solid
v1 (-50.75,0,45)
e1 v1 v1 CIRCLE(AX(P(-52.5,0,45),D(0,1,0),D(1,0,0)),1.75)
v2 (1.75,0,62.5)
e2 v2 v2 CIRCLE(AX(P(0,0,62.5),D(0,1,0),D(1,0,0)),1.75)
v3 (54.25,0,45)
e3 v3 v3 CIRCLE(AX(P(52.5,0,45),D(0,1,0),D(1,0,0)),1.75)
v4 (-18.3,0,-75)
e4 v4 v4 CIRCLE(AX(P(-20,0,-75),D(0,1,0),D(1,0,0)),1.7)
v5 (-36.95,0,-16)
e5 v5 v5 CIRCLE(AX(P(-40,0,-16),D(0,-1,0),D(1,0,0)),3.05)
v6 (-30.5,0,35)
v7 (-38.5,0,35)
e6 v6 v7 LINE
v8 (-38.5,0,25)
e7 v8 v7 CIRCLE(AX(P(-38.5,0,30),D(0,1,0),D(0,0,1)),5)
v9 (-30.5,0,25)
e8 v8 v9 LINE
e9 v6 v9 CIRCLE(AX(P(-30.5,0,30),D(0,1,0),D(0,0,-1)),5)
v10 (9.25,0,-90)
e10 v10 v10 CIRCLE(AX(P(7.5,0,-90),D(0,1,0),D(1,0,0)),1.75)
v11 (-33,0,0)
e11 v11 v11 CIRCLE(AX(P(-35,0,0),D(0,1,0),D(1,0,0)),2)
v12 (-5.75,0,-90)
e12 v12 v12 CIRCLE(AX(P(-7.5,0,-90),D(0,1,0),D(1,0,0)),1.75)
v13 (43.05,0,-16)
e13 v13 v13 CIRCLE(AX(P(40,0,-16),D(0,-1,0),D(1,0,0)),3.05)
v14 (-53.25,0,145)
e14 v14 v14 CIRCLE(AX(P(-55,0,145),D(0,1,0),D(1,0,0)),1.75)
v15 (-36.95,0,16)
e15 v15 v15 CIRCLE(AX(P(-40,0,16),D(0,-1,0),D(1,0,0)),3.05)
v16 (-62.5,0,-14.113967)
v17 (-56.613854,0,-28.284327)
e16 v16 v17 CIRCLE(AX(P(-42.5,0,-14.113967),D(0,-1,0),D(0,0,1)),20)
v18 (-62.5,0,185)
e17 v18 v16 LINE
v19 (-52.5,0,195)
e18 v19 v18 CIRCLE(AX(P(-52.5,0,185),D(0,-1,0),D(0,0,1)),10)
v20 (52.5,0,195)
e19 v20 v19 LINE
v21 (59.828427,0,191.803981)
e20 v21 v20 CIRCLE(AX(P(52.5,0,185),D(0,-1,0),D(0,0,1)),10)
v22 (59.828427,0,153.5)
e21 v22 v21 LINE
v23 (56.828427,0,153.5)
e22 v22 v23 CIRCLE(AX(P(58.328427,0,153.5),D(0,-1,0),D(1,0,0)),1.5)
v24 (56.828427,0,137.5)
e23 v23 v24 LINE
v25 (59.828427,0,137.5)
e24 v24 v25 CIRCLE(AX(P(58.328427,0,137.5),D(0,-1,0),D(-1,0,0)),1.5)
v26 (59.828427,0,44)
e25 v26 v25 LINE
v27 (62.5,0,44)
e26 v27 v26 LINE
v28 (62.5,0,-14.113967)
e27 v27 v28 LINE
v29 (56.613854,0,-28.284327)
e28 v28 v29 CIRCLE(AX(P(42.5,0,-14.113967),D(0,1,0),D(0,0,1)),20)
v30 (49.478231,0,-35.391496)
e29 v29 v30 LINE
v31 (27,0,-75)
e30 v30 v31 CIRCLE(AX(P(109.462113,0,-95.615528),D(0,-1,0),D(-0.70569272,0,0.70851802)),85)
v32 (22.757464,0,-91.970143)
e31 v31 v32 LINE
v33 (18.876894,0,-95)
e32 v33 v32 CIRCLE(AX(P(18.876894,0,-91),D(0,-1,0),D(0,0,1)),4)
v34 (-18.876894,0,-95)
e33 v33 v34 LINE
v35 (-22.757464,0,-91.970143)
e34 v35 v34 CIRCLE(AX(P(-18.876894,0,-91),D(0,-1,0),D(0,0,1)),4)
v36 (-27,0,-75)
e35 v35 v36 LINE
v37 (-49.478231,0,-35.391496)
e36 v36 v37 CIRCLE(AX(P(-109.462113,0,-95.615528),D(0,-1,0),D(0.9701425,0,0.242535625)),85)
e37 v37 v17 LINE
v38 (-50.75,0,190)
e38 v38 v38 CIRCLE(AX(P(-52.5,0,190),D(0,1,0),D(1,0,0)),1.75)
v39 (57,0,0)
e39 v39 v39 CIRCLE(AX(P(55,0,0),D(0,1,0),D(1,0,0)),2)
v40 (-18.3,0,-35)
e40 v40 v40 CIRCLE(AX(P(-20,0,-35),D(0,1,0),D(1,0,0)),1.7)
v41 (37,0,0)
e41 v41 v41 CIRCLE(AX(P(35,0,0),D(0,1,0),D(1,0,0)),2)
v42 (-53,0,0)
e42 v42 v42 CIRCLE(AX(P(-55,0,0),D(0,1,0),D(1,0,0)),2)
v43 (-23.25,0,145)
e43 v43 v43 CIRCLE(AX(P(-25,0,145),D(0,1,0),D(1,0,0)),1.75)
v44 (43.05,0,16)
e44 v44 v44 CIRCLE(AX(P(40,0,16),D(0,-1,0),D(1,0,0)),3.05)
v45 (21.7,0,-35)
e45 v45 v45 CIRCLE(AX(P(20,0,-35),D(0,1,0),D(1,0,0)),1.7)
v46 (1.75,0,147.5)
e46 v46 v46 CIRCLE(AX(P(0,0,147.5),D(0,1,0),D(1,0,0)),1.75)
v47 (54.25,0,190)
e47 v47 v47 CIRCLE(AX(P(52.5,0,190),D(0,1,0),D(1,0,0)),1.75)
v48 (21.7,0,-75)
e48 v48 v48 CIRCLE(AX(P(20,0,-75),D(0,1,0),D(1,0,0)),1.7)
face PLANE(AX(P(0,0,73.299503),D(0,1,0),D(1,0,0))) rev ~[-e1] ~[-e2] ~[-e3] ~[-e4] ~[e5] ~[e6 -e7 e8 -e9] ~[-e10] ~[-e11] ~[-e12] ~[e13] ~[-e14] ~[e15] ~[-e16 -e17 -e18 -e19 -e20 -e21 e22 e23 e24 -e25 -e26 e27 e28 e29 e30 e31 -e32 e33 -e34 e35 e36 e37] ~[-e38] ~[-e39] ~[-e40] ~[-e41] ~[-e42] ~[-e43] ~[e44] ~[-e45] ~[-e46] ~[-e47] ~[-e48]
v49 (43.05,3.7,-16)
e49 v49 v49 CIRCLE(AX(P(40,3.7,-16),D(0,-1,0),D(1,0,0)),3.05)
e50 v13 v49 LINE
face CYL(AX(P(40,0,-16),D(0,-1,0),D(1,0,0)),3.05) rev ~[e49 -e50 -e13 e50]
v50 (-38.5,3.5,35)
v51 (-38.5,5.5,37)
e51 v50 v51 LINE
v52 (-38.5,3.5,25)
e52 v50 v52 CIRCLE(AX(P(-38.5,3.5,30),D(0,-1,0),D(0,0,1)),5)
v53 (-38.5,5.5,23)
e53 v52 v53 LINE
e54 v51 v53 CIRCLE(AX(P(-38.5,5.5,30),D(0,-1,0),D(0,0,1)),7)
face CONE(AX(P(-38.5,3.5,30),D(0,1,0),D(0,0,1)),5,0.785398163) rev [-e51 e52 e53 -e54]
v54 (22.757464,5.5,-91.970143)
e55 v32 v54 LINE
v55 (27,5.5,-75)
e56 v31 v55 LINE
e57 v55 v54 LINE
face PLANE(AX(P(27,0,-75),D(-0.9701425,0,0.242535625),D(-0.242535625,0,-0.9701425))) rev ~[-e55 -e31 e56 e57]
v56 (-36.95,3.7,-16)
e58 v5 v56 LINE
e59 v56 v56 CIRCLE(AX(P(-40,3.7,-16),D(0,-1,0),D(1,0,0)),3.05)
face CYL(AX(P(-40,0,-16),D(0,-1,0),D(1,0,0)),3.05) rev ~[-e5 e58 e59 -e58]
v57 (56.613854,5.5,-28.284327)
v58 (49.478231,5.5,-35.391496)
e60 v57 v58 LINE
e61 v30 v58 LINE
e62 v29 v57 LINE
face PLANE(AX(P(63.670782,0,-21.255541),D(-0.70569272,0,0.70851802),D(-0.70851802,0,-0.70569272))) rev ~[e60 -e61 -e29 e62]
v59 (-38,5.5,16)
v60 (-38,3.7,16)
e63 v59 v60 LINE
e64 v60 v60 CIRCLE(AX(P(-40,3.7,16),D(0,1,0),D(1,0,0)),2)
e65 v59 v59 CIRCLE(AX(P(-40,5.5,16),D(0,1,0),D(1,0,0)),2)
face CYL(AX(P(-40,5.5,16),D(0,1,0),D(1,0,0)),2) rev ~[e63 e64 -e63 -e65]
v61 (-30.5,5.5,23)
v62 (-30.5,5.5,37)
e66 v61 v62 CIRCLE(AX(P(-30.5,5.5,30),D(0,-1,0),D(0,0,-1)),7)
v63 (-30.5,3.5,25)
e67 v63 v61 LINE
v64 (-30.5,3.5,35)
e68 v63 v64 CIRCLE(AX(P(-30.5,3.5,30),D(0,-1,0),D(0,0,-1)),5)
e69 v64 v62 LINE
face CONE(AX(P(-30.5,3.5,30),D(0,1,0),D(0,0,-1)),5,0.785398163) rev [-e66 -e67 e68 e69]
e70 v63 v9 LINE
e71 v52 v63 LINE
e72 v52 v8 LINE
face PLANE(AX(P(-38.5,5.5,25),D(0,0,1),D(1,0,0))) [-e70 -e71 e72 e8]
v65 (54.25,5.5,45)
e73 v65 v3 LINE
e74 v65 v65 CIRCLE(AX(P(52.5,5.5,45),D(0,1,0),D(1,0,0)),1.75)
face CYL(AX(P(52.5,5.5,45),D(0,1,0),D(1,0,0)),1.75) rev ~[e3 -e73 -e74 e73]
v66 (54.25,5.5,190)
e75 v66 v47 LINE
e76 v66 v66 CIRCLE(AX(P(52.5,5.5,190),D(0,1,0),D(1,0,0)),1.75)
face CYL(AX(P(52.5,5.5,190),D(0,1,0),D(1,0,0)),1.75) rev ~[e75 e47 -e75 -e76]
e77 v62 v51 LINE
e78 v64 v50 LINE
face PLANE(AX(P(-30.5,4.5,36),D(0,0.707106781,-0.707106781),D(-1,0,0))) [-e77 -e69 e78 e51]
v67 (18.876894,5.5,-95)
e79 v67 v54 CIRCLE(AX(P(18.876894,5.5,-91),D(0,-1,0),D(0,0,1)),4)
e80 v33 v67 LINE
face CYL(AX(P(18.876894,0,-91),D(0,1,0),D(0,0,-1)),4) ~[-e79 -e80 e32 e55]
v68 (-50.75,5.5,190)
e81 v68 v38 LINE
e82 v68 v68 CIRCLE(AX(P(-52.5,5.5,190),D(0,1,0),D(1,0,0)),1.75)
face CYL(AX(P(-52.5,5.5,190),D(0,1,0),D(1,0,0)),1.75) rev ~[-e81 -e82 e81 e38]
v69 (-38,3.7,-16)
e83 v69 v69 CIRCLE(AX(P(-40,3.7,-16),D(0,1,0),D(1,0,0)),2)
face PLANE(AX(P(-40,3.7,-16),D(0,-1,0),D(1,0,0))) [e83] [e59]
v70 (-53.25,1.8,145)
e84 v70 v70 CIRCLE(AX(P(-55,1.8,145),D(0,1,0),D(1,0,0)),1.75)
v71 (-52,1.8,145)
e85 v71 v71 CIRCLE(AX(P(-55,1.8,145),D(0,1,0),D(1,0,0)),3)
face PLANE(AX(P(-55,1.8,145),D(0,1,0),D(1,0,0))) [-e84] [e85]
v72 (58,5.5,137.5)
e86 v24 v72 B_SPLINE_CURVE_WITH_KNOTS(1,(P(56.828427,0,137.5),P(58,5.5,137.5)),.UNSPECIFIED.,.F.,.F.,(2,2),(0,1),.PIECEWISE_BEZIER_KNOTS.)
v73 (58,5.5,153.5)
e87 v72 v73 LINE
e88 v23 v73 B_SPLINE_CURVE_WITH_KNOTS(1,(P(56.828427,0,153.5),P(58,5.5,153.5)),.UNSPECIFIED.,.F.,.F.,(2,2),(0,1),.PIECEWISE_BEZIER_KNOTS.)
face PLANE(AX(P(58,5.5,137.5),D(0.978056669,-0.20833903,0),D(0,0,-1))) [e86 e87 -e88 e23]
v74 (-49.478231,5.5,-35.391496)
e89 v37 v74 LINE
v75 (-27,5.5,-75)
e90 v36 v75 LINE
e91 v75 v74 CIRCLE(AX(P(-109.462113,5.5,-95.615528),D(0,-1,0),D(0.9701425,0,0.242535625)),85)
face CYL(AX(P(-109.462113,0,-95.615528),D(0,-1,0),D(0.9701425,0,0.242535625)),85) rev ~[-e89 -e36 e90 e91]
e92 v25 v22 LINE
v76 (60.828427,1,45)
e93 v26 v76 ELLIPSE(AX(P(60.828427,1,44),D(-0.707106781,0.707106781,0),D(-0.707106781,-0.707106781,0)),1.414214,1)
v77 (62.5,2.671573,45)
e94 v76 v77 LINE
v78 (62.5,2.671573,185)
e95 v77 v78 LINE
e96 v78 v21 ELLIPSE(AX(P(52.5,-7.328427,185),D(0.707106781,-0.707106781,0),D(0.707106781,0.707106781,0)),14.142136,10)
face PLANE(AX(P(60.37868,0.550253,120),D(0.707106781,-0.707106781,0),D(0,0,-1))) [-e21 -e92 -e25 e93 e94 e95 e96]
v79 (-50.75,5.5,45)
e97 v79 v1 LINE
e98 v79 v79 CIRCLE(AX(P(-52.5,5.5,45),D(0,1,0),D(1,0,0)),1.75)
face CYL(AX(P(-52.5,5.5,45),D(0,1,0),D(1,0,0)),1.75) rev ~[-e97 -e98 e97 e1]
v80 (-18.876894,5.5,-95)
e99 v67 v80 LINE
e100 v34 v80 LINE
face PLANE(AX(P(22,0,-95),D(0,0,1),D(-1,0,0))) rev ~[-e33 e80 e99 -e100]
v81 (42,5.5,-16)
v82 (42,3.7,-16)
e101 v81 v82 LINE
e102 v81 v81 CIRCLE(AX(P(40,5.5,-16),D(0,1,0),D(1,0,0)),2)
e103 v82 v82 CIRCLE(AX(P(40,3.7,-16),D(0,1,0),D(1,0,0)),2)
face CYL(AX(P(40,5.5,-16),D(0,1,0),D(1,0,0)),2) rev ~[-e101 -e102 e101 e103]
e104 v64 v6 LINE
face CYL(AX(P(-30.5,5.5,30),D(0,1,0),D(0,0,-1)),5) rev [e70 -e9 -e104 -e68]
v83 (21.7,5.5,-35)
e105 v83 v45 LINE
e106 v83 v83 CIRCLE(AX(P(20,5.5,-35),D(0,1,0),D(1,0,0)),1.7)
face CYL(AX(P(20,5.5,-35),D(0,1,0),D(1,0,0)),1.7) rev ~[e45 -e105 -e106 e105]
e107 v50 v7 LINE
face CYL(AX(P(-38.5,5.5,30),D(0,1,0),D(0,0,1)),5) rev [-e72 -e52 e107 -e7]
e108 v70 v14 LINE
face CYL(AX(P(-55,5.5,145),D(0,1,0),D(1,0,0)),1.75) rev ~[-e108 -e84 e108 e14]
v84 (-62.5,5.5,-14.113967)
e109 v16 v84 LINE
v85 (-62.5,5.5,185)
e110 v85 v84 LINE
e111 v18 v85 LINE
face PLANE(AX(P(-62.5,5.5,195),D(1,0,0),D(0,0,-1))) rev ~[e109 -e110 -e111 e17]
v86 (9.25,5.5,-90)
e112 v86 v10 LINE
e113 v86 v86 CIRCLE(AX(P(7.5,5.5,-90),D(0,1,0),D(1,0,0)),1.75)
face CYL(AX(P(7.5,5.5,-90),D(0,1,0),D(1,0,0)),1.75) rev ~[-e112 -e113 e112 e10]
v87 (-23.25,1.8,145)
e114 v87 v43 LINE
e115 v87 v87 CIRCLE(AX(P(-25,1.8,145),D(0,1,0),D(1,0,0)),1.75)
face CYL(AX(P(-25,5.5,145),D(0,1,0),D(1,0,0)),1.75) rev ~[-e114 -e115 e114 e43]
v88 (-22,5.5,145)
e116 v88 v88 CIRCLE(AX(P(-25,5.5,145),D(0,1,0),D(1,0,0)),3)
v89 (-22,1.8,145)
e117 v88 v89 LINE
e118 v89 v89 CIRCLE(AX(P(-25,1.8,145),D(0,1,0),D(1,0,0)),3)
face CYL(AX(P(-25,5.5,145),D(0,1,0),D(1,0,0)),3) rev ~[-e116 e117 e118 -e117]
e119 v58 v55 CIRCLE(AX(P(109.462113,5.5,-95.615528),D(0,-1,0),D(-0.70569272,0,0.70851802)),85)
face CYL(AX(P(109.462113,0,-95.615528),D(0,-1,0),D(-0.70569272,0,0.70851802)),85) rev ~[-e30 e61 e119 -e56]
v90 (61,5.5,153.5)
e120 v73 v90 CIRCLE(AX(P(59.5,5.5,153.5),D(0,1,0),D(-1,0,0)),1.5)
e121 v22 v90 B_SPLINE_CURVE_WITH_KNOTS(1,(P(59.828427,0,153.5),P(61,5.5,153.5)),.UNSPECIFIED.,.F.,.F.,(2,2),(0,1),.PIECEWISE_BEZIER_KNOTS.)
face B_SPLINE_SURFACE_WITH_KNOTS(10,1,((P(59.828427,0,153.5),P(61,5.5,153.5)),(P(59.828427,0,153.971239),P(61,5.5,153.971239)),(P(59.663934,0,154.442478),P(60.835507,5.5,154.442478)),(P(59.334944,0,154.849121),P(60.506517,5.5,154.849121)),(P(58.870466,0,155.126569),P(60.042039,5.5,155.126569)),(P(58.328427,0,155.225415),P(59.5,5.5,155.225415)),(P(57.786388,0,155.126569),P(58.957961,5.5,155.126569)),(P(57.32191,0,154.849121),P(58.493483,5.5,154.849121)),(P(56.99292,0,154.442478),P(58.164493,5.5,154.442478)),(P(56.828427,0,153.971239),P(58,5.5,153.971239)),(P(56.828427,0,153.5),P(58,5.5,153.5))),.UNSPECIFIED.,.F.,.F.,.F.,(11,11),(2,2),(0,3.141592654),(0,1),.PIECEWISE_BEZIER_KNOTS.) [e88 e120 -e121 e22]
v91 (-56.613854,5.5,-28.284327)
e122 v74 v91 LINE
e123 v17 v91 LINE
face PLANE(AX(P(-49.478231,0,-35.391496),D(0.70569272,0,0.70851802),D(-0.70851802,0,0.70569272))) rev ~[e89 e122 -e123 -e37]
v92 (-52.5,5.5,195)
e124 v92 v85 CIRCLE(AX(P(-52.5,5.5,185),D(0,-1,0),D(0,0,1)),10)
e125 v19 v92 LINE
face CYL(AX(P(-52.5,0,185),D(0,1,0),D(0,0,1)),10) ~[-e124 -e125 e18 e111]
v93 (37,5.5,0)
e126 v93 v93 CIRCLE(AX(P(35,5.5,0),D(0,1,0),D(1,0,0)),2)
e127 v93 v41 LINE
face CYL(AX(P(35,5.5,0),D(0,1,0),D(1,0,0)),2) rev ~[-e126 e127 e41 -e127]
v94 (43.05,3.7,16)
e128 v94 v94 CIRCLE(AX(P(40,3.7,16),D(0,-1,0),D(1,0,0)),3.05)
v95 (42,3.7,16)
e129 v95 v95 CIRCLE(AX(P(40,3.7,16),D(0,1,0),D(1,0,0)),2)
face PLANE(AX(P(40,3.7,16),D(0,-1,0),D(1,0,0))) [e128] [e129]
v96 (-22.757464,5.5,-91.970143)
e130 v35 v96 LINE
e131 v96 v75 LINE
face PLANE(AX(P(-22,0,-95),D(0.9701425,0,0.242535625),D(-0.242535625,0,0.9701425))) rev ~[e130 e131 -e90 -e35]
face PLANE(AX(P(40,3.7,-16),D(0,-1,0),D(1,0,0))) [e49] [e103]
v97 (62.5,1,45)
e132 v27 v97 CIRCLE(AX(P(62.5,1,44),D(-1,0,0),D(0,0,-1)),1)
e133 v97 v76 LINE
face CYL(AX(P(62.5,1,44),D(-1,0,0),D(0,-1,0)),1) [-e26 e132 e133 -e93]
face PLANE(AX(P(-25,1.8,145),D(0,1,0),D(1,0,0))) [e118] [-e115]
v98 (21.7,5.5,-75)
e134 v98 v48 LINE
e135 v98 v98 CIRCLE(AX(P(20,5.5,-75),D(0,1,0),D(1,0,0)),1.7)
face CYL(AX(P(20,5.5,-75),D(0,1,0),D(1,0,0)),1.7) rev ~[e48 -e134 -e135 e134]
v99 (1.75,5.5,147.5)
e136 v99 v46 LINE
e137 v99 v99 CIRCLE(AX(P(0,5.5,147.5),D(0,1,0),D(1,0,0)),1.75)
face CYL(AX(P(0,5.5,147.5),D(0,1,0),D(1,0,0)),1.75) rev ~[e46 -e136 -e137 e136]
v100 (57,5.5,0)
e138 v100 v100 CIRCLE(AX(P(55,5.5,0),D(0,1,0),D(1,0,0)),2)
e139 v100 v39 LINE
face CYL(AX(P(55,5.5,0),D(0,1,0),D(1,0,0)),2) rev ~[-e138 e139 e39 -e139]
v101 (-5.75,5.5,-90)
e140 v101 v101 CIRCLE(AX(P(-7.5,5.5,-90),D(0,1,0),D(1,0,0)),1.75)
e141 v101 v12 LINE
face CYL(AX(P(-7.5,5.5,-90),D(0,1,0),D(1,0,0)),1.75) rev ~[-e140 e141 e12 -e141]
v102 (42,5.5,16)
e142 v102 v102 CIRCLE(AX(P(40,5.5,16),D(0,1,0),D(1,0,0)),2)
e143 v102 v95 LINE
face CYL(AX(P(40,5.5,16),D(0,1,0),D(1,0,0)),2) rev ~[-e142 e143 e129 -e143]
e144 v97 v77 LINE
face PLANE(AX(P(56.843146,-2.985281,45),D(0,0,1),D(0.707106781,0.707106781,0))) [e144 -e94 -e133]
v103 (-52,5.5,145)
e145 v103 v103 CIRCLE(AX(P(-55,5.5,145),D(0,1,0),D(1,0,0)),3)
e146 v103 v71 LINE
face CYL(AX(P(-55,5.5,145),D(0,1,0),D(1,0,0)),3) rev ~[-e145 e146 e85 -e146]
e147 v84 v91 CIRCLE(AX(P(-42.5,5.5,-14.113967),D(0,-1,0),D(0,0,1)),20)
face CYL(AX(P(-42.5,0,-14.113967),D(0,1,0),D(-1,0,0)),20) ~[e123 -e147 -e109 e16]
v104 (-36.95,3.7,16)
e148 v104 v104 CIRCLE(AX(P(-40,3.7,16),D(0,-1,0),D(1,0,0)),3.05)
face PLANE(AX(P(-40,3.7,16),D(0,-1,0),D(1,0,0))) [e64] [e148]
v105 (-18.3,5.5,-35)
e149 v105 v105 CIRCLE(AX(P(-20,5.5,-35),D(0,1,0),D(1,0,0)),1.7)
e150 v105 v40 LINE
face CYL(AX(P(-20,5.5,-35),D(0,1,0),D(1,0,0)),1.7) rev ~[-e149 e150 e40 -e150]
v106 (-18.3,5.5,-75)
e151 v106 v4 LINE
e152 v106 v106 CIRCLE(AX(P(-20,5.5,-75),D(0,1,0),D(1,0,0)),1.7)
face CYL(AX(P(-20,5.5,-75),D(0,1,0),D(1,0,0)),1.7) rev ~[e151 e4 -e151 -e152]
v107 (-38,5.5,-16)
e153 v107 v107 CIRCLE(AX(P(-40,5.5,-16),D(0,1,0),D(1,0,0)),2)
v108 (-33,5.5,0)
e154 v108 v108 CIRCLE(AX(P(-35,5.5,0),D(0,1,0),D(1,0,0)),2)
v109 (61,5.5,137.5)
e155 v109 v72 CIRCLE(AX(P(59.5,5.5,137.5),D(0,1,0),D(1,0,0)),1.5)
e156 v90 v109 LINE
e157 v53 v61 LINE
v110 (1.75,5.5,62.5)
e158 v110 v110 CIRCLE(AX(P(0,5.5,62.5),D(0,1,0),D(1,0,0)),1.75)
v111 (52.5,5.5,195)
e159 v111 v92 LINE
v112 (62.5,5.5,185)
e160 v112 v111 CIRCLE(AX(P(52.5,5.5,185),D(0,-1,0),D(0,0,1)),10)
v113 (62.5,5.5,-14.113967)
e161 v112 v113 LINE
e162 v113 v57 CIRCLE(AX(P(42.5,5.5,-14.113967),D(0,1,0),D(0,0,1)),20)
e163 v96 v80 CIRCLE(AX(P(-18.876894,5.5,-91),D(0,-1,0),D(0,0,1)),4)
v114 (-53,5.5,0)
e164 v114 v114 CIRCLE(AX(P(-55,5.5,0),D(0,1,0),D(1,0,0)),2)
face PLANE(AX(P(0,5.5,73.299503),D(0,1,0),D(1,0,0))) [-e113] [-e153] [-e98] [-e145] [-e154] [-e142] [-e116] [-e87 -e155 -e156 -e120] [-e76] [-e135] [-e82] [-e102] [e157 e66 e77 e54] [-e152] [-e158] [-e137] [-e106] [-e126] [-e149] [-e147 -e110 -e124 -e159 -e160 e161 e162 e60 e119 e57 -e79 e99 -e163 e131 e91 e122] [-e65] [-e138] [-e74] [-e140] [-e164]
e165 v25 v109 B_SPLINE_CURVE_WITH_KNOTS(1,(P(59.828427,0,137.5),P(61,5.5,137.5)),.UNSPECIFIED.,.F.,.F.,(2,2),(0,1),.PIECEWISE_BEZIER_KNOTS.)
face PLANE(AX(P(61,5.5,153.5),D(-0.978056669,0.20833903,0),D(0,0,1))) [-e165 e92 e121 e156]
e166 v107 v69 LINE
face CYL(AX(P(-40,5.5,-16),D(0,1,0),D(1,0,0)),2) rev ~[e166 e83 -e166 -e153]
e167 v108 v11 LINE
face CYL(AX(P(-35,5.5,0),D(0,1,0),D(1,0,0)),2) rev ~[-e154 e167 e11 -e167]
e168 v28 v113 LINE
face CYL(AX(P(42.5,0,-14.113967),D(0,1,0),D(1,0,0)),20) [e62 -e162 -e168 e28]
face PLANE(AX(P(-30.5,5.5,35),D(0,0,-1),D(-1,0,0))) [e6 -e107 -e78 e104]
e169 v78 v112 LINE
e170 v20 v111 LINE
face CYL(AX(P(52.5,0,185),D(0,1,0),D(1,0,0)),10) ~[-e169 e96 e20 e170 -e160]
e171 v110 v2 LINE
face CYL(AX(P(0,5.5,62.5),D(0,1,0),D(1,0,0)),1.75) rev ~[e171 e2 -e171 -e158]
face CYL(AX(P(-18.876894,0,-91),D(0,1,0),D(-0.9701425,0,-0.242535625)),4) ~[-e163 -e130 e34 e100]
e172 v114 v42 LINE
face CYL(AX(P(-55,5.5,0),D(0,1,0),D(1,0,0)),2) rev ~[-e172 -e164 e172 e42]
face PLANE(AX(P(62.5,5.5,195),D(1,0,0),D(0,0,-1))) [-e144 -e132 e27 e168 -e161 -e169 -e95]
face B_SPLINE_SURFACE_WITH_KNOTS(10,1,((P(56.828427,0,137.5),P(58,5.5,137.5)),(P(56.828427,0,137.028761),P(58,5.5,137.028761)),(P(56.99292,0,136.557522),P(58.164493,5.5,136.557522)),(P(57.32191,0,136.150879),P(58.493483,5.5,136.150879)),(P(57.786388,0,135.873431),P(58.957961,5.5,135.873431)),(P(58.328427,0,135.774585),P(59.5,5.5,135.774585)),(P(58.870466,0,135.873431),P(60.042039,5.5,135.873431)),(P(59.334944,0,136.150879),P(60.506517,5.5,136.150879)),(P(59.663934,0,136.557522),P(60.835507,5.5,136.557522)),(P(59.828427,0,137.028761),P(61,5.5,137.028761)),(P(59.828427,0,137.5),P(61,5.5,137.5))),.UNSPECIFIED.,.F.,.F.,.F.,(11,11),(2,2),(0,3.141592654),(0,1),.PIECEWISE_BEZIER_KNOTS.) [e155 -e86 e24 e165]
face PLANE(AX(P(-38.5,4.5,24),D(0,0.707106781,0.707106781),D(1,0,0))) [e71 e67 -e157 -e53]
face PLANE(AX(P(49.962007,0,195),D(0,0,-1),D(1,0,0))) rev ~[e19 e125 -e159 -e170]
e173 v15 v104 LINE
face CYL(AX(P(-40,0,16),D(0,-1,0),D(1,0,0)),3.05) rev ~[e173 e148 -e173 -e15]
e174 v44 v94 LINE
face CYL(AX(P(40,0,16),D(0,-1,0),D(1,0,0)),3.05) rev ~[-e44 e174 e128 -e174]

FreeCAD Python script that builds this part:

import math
import FreeCAD as App
import Part
import Sketcher

V = App.Vector
Q = App.Units.Quantity


def edges_at(feature, points):
    """Names of the edges that pass closest to the given points."""
    edges = feature.Shape.Edges
    near = lambda p: min(range(len(edges)), key=lambda i: edges[i].distToShape(Part.Vertex(*p))[0])
    return sorted({f"Edge{near(p) + 1}" for p in points})


def add_polygon(sketch, points):
    """Adds a closed chain of lines whose ends are joined by coincident constraints."""
    first, n = sketch.GeometryCount, len(points)
    for a, b in zip(points, points[1:] + points[:1]):
        sketch.addGeometry(Part.LineSegment(App.Vector(*a, 0), App.Vector(*b, 0)), False)
    for i in range(n):
        sketch.addConstraint(Sketcher.Constraint("Coincident", first + i, 2, first + (i + 1) % n, 1))

doc = App.newDocument("Part")
body = doc.addObject("PartDesign::Body", "Body")

# Sketch on XZ plane
sketch1 = doc.addObject("Sketcher::SketchObject", "Sketch")
body.addObject(sketch1)
sketch1.AttachmentSupport = (doc.XZ_Plane, [""])
sketch1.MapMode = "FlatFace"
sketch1.addGeometry([
    Part.LineSegment(V(-72.5, 0, 0), V(-72.5, 185, 0)),  # 0
    Part.ArcOfCircle(Part.Circle(V(-62.5, 185, 0), V(0, 0, 1), 10), math.radians(90), math.radians(180)),  # 1
    Part.LineSegment(V(-62.5, 195, 0), V(-50, 195, 0)),  # 2
    Part.ArcOfCircle(Part.Circle(V(-50, 200, 0), V(0, 0, 1), 5), math.radians(-90), math.radians(-38)),  # 3
    Part.LineSegment(V(-46, 197, 0), V(-19, 232, 0)),  # 4
    Part.ArcOfCircle(Part.Circle(V(-15, 229, 0), V(0, 0, 1), 5), math.radians(90), math.radians(142)),  # 5
    Part.LineSegment(V(-15, 234, 0), V(15, 234, 0)),  # 6
    Part.ArcOfCircle(Part.Circle(V(15, 229, 0), V(0, 0, 1), 5), math.radians(38), math.radians(90)),  # 7
    Part.LineSegment(V(19, 232, 0), V(46, 197, 0)),  # 8
    Part.ArcOfCircle(Part.Circle(V(50, 200, 0), V(0, 0, 1), 5), math.radians(-142), math.radians(-90)),  # 9
    Part.LineSegment(V(50, 195, 0), V(62.5, 195, 0)),  # 10
    Part.ArcOfCircle(Part.Circle(V(62.5, 185, 0), V(0, 0, 1), 10), math.radians(0), math.radians(90)),  # 11
    Part.LineSegment(V(72.5, 185, 0), V(72.5, 0, 0)),  # 12
    Part.ArcOfCircle(Part.Circle(V(42.5, 0, 0), V(0, 0, 1), 30), math.radians(-45), math.radians(0)),  # 13
    Part.LineSegment(V(63.7, -21.3, 0), V(49.5, -35.4, 0)),  # 14
    Part.ArcOfCircle(Part.Circle(V(109.5, -95.6, 0), V(0, 0, 1), 85), math.radians(135), math.radians(166)),  # 15
    Part.LineSegment(V(27, -75, 0), V(22, -95, 0)),  # 16
    Part.LineSegment(V(22, -95, 0), V(-22, -95, 0)),  # 17
    Part.LineSegment(V(-22, -95, 0), V(-27, -75, 0)),  # 18
    Part.ArcOfCircle(Part.Circle(V(-109.5, -95.6, 0), V(0, 0, 1), 85), math.radians(14), math.radians(45)),  # 19
    Part.LineSegment(V(-49.5, -35.4, 0), V(-63.7, -21.3, 0)),  # 20
    Part.ArcOfCircle(Part.Circle(V(-42.5, 0, 0), V(0, 0, 1), 30), math.radians(180), math.radians(225)),  # 21
], False)
sketch1.addConstraint([
    Sketcher.Constraint("Tangent", 0, 2, 1, 2),
    Sketcher.Constraint("Tangent", 1, 1, 2, 1),
    Sketcher.Constraint("Tangent", 2, 2, 3, 1),
    Sketcher.Constraint("Tangent", 3, 2, 4, 1),
    Sketcher.Constraint("Tangent", 4, 2, 5, 2),
    Sketcher.Constraint("Tangent", 5, 1, 6, 1),
    Sketcher.Constraint("Tangent", 6, 2, 7, 2),
    Sketcher.Constraint("Tangent", 7, 1, 8, 1),
    Sketcher.Constraint("Tangent", 8, 2, 9, 1),
    Sketcher.Constraint("Tangent", 9, 2, 10, 1),
    Sketcher.Constraint("Tangent", 10, 2, 11, 2),
    Sketcher.Constraint("Tangent", 11, 1, 12, 1),
    Sketcher.Constraint("Tangent", 12, 2, 13, 2),
    Sketcher.Constraint("Tangent", 13, 1, 14, 1),
    Sketcher.Constraint("Tangent", 14, 2, 15, 1),
    Sketcher.Constraint("Tangent", 15, 2, 16, 1),
    Sketcher.Constraint("Coincident", 16, 2, 17, 1),
    Sketcher.Constraint("Coincident", 17, 2, 18, 1),
    Sketcher.Constraint("Tangent", 18, 2, 19, 1),
    Sketcher.Constraint("Tangent", 19, 2, 20, 1),
    Sketcher.Constraint("Tangent", 20, 2, 21, 2),
    Sketcher.Constraint("Tangent", 21, 1, 0, 1),
    Sketcher.Constraint("Vertical", 0),
    Sketcher.Constraint("Horizontal", 2),
    Sketcher.Constraint("Horizontal", 6),
    Sketcher.Constraint("Horizontal", 10),
    Sketcher.Constraint("Vertical", 12),
    Sketcher.Constraint("Horizontal", 17),
    Sketcher.Constraint("Equal", 3, 5),
    Sketcher.Constraint("Equal", 5, 7),
    Sketcher.Constraint("Equal", 7, 9),
    Sketcher.Constraint("Equal", 1, 11),
    Sketcher.Constraint("Equal", 15, 19),
    Sketcher.Constraint("Equal", 13, 21),
    Sketcher.Constraint("Symmetric", 13, 3, 21, 3, -1, 1),
    Sketcher.Constraint("Symmetric", 3, 3, 9, 3, -2),
    Sketcher.Constraint("Symmetric", 15, 3, 19, 3, -2),
    Sketcher.Constraint("PointOnObject", 13, 3, -1),
    Sketcher.Constraint("Horizontal", 4, 2, 7, 1),
    Sketcher.Constraint("Horizontal", 15, 2, 18, 2),
    Sketcher.Constraint("Radius", 1, Q("10 mm")),
    Sketcher.Constraint("Radius", 3, Q("5 mm")),
    Sketcher.Constraint("Radius", 13, Q("30 mm")),
    Sketcher.Constraint("Radius", 15, Q("85 mm")),
    Sketcher.Constraint("DistanceX", 17, 2, 17, 1, Q("44 mm")),
    Sketcher.Constraint("DistanceY", 0, 1, 0, 2, Q("185 mm")),
    Sketcher.Constraint("DistanceY", -1, 1, 5, 3, Q("229 mm")),
    Sketcher.Constraint("DistanceX", -1, 1, 15, 2, Q("27 mm")),
    Sketcher.Constraint("DistanceY", 15, 2, -1, 1, Q("75 mm")),
    Sketcher.Constraint("DistanceY", 16, 2, -1, 1, Q("95 mm")),
    Sketcher.Constraint("DistanceX", 3, 3, 7, 3, Q("65 mm")),
    Sketcher.Constraint("DistanceX", 1, 3, 11, 3, Q("125 mm")),
    Sketcher.Constraint("DistanceX", 2, 1, 2, 2, Q("12.537993 mm")),
])
pad1 = doc.addObject("PartDesign::Pad", "Pad")
body.addObject(pad1)
pad1.Profile = sketch1
pad1.Length = 5.5
pad1.Reversed = True

# Sketch on XZ plane
sketch2 = doc.addObject("Sketcher::SketchObject", "Sketch001")
body.addObject(sketch2)
sketch2.AttachmentSupport = (doc.XZ_Plane, [""])
sketch2.MapMode = "FlatFace"
sketch2.AttachmentOffset = App.Placement(V(0, 0, -5.5), App.Rotation())
sketch2.addGeometry(Part.Circle(V(7.5, -90, 0), V(0, 0, 1), 1.8), False)
sketch2.addConstraint([
    Sketcher.Constraint("Diameter", 0, Q("3.5 mm")),
    Sketcher.Constraint("DistanceY", 0, 3, -1, 1, Q("90 mm")),
    Sketcher.Constraint("DistanceX", -1, 1, 0, 3, Q("7.5 mm")),
])
pocket1 = doc.addObject("PartDesign::Pocket", "Pocket")
body.addObject(pocket1)
pocket1.Profile = sketch2
pocket1.Type = "UpToFirst"
pocket1.Reversed = True

# Sketch on XZ plane
sketch3 = doc.addObject("Sketcher::SketchObject", "Sketch002")
body.addObject(sketch3)
sketch3.AttachmentSupport = (doc.XZ_Plane, [""])
sketch3.MapMode = "FlatFace"
sketch3.AttachmentOffset = App.Placement(V(0, 0, -5.5), App.Rotation())
sketch3.addGeometry(Part.Circle(V(-7.5, -90, 0), V(0, 0, 1), 1.8), False)
sketch3.addConstraint([
    Sketcher.Constraint("Diameter", 0, Q("3.5 mm")),
    Sketcher.Constraint("DistanceY", 0, 3, -1, 1, Q("90 mm")),
    Sketcher.Constraint("DistanceX", 0, 3, -1, 1, Q("7.5 mm")),
])
pocket2 = doc.addObject("PartDesign::Pocket", "Pocket001")
body.addObject(pocket2)
pocket2.Profile = sketch3
pocket2.Type = "UpToFirst"
pocket2.Reversed = True

# Sketch on XZ plane
sketch4 = doc.addObject("Sketcher::SketchObject", "Sketch003")
body.addObject(sketch4)
sketch4.AttachmentSupport = (doc.XZ_Plane, [""])
sketch4.MapMode = "FlatFace"
sketch4.AttachmentOffset = App.Placement(V(0, 0, -5.5), App.Rotation())
sketch4.addGeometry(Part.Circle(V(52.5, 45, 0), V(0, 0, 1), 1.8), False)
sketch4.addConstraint([
    Sketcher.Constraint("Diameter", 0, Q("3.5 mm")),
    Sketcher.Constraint("DistanceY", -1, 1, 0, 3, Q("45 mm")),
    Sketcher.Constraint("DistanceX", -1, 1, 0, 3, Q("52.5 mm")),
])
pocket3 = doc.addObject("PartDesign::Pocket", "Pocket002")
body.addObject(pocket3)
pocket3.Profile = sketch4
pocket3.Type = "UpToFirst"
pocket3.Reversed = True

# Sketch on XZ plane
sketch5 = doc.addObject("Sketcher::SketchObject", "Sketch004")
body.addObject(sketch5)
sketch5.AttachmentSupport = (doc.XZ_Plane, [""])
sketch5.MapMode = "FlatFace"
sketch5.AttachmentOffset = App.Placement(V(0, 0, -5.5), App.Rotation())
sketch5.addGeometry(Part.Circle(V(52.5, 190, 0), V(0, 0, 1), 1.8), False)
sketch5.addConstraint([
    Sketcher.Constraint("Diameter", 0, Q("3.5 mm")),
    Sketcher.Constraint("DistanceY", -1, 1, 0, 3, Q("190 mm")),
    Sketcher.Constraint("DistanceX", -1, 1, 0, 3, Q("52.5 mm")),
])
pocket4 = doc.addObject("PartDesign::Pocket", "Pocket003")
body.addObject(pocket4)
pocket4.Profile = sketch5
pocket4.Type = "UpToFirst"
pocket4.Reversed = True

# Sketch on XZ plane
sketch6 = doc.addObject("Sketcher::SketchObject", "Sketch005")
body.addObject(sketch6)
sketch6.AttachmentSupport = (doc.XZ_Plane, [""])
sketch6.MapMode = "FlatFace"
sketch6.AttachmentOffset = App.Placement(V(0, 0, -5.5), App.Rotation())
sketch6.addGeometry(Part.Circle(V(-52.5, 190, 0), V(0, 0, 1), 1.8), False)
sketch6.addConstraint([
    Sketcher.Constraint("Diameter", 0, Q("3.5 mm")),
    Sketcher.Constraint("DistanceY", -1, 1, 0, 3, Q("190 mm")),
    Sketcher.Constraint("DistanceX", 0, 3, -1, 1, Q("52.5 mm")),
])
pocket5 = doc.addObject("PartDesign::Pocket", "Pocket004")
body.addObject(pocket5)
pocket5.Profile = sketch6
pocket5.Type = "UpToFirst"
pocket5.Reversed = True

# Sketch on XZ plane
sketch7 = doc.addObject("Sketcher::SketchObject", "Sketch006")
body.addObject(sketch7)
sketch7.AttachmentSupport = (doc.XZ_Plane, [""])
sketch7.MapMode = "FlatFace"
sketch7.AttachmentOffset = App.Placement(V(0, 0, -5.5), App.Rotation())
sketch7.addGeometry(Part.Circle(V(-52.5, 45, 0), V(0, 0, 1), 1.8), False)
sketch7.addConstraint([
    Sketcher.Constraint("Diameter", 0, Q("3.5 mm")),
    Sketcher.Constraint("DistanceY", -1, 1, 0, 3, Q("45 mm")),
    Sketcher.Constraint("DistanceX", 0, 3, -1, 1, Q("52.5 mm")),
])
pocket6 = doc.addObject("PartDesign::Pocket", "Pocket005")
body.addObject(pocket6)
pocket6.Profile = sketch7
pocket6.Type = "UpToFirst"
pocket6.Reversed = True
doc.recompute()

fillet = doc.addObject("PartDesign::Fillet", "Fillet")
body.addObject(fillet)
fillet.Base = (pocket6, edges_at(pocket6, [(22, 2.75, -95), (-22, 2.75, -95)]))
fillet.Radius = 4

# Sketch on XZ plane
sketch8 = doc.addObject("Sketcher::SketchObject", "Sketch007")
body.addObject(sketch8)
sketch8.AttachmentSupport = (doc.XZ_Plane, [""])
sketch8.MapMode = "FlatFace"
sketch8.AttachmentOffset = App.Placement(V(0, 0, -5.5), App.Rotation())
add_polygon(sketch8, [(-72, 195), (-72, 234), (72, 234), (72, 195)])  # lines 0-3
sketch8.addConstraint([
    Sketcher.Constraint("Vertical", 0),
    Sketcher.Constraint("Horizontal", 1),
    Sketcher.Constraint("Vertical", 2),
    Sketcher.Constraint("Horizontal", 3),
    Sketcher.Constraint("DistanceX", 1, 1, 1, 2, Q("145 mm")),
    Sketcher.Constraint("DistanceY", 0, 1, 0, 2, Q("39 mm")),
    Sketcher.Constraint("DistanceY", -1, 1, 0, 2, Q("234 mm")),
    Sketcher.Constraint("DistanceX", 0, 2, -1, 1, Q("72.5 mm")),
])
pocket7 = doc.addObject("PartDesign::Pocket", "Pocket006")
body.addObject(pocket7)
pocket7.Profile = sketch8
pocket7.Type = "UpToFirst"
pocket7.Reversed = True

# Sketch on XZ plane
sketch9 = doc.addObject("Sketcher::SketchObject", "Sketch008")
body.addObject(sketch9)
sketch9.AttachmentSupport = (doc.XZ_Plane, [""])
sketch9.MapMode = "FlatFace"
sketch9.AttachmentOffset = App.Placement(V(0, 0, -5.5), App.Rotation())
add_polygon(sketch9, [(-106, -128), (-106, 228), (106, 228), (106, -128)])  # lines 0-3
add_polygon(sketch9, [(62, 195), (-62, 195), (-62, -95), (62, -95)])  # lines 4-7
sketch9.addConstraint([
    Sketcher.Constraint("Vertical", 0),
    Sketcher.Constraint("Horizontal", 1),
    Sketcher.Constraint("Vertical", 2),
    Sketcher.Constraint("Horizontal", 3),
    Sketcher.Constraint("Horizontal", 4),
    Sketcher.Constraint("Vertical", 5),
    Sketcher.Constraint("Horizontal", 6),
    Sketcher.Constraint("Vertical", 7),
    Sketcher.Constraint("DistanceX", 4, 2, 4, 1, Q("125 mm")),
    Sketcher.Constraint("DistanceY", 5, 2, 5, 1, Q("290 mm")),
    Sketcher.Constraint("DistanceY", -1, 1, 4, 2, Q("195 mm")),
    Sketcher.Constraint("DistanceX", 4, 2, -1, 1, Q("62.5 mm")),
    Sketcher.Constraint("DistanceX", 1, 1, 1, 2, Q("211.856 mm")),
    Sketcher.Constraint("DistanceY", 0, 1, 0, 2, Q("356.856 mm")),
    Sketcher.Constraint("DistanceX", 0, 2, -1, 1, Q("105.928 mm")),
    Sketcher.Constraint("DistanceY", -1, 1, 0, 2, Q("228.428 mm")),
])
pocket8 = doc.addObject("PartDesign::Pocket", "Pocket007")
body.addObject(pocket8)
pocket8.Profile = sketch9
pocket8.Length = 10
pocket8.Reversed = True
doc.recompute()

fillet2 = doc.addObject("PartDesign::Fillet", "Fillet001")
body.addObject(fillet2)
fillet2.Base = (pocket8, edges_at(pocket8, [(-62.5, 2.75, 195), (62.5, 2.75, 195)]))
fillet2.Radius = 10
doc.recompute()

fillet3 = doc.addObject("PartDesign::Fillet", "Fillet002")
body.addObject(fillet3)
fillet3.Base = (fillet2, edges_at(fillet2, [(-62.5, 2.75, -22.422), (62.5, 2.75, -22.422)]))
fillet3.Radius = 20

# Sketch on XZ plane
sketch10 = doc.addObject("Sketcher::SketchObject", "Sketch009")
body.addObject(sketch10)
sketch10.AttachmentSupport = (doc.XZ_Plane, [""])
sketch10.MapMode = "FlatFace"
sketch10.AttachmentOffset = App.Placement(V(0, 0, -5.5), App.Rotation())
sketch10.addGeometry([
    Part.LineSegment(V(-30, 25, 0), V(-38, 25, 0)),
    Part.ArcOfCircle(Part.Circle(V(-38, 30, 0), V(0, 0, 1), 5), math.radians(90), math.radians(270)),
    Part.LineSegment(V(-38, 35, 0), V(-30, 35, 0)),
    Part.ArcOfCircle(Part.Circle(V(-30, 30, 0), V(0, 0, 1), 5), math.radians(-90), math.radians(90)),
], False)
sketch10.addConstraint([
    Sketcher.Constraint("Tangent", 0, 2, 1, 2),
    Sketcher.Constraint("Tangent", 1, 1, 2, 1),
    Sketcher.Constraint("Tangent", 2, 2, 3, 2),
    Sketcher.Constraint("Tangent", 3, 1, 0, 1),
    Sketcher.Constraint("Horizontal", 0),
    Sketcher.Constraint("Horizontal", 2),
    Sketcher.Constraint("Radius", 1, Q("5 mm")),
    Sketcher.Constraint("DistanceX", 0, 2, 0, 1, Q("8 mm")),
    Sketcher.Constraint("DistanceY", -1, 1, 1, 3, Q("30 mm")),
    Sketcher.Constraint("DistanceX", 1, 3, -1, 1, Q("38.5 mm")),
])
pocket9 = doc.addObject("PartDesign::Pocket", "Pocket008")
body.addObject(pocket9)
pocket9.Profile = sketch10
pocket9.Length = 10
pocket9.Reversed = True
doc.recompute()

chamfer = doc.addObject("PartDesign::Chamfer", "Chamfer")
body.addObject(chamfer)
chamfer.Base = (pocket9, edges_at(pocket9, [
    (-43.5, 5.5, 30),
    (-34.5, 5.5, 35),
    (-25.5, 5.5, 30),
    (-34.5, 5.5, 25),
]))
chamfer.Size = 2

# Sketch on XZ plane
sketch11 = doc.addObject("Sketcher::SketchObject", "Sketch010")
body.addObject(sketch11)
sketch11.AttachmentSupport = (doc.XZ_Plane, [""])
sketch11.MapMode = "FlatFace"
sketch11.AttachmentOffset = App.Placement(V(0, 0, -5.5), App.Rotation())
sketch11.addGeometry([
    Part.Circle(V(-55, 0, 0), V(0, 0, 1), 2),  # 0
    Part.Circle(V(-35, 0, 0), V(0, 0, 1), 2),  # 1
    Part.Circle(V(-40, -16, 0), V(0, 0, 1), 2),  # 2
    Part.Circle(V(40, -16, 0), V(0, 0, 1), 2),  # 3
    Part.Circle(V(35, 0, 0), V(0, 0, 1), 2),  # 4
    Part.Circle(V(55, 0, 0), V(0, 0, 1), 2),  # 5
    Part.Circle(V(40, 16, 0), V(0, 0, 1), 2),  # 6
    Part.Circle(V(-40, 16, 0), V(0, 0, 1), 2),  # 7
], False)
sketch11.addConstraint([
    Sketcher.Constraint("Equal", 0, 1),
    Sketcher.Constraint("Equal", 1, 2),
    Sketcher.Constraint("Equal", 2, 3),
    Sketcher.Constraint("Equal", 3, 4),
    Sketcher.Constraint("Equal", 4, 5),
    Sketcher.Constraint("Equal", 5, 6),
    Sketcher.Constraint("Equal", 6, 7),
    Sketcher.Constraint("Symmetric", 1, 3, 4, 3, -1, 1),
    Sketcher.Constraint("Symmetric", 0, 3, 5, 3, -1, 1),
    Sketcher.Constraint("Symmetric", 2, 3, 6, 3, -1, 1),
    Sketcher.Constraint("Symmetric", 3, 3, 7, 3, -1, 1),
    Sketcher.Constraint("Symmetric", 2, 3, 3, 3, -2),
    Sketcher.Constraint("PointOnObject", 0, 3, -1),
    Sketcher.Constraint("PointOnObject", 1, 3, -1),
    Sketcher.Constraint("Diameter", 0, Q("4 mm")),
    Sketcher.Constraint("DistanceX", 0, 3, -1, 1, Q("55 mm")),
    Sketcher.Constraint("DistanceX", 1, 3, -1, 1, Q("35 mm")),
    Sketcher.Constraint("DistanceX", 2, 3, -1, 1, Q("40 mm")),
    Sketcher.Constraint("DistanceY", 2, 3, -1, 1, Q("16 mm")),
])
pocket10 = doc.addObject("PartDesign::Pocket", "Pocket009")
body.addObject(pocket10)
pocket10.Profile = sketch11
pocket10.Length = 10
pocket10.Reversed = True

# Sketch on XZ plane
sketch12 = doc.addObject("Sketcher::SketchObject", "Sketch011")
body.addObject(sketch12)
sketch12.AttachmentSupport = (doc.XZ_Plane, [""])
sketch12.MapMode = "FlatFace"
sketch12.AttachmentOffset = App.Placement(V(0, 0, -5.5), App.Rotation())
sketch12.addGeometry(Part.Circle(V(-20, -75, 0), V(0, 0, 1), 1.7), False)
sketch12.addConstraint([
    Sketcher.Constraint("Diameter", 0, Q("3.4 mm")),
    Sketcher.Constraint("DistanceX", 0, 3, -1, 1, Q("20 mm")),
    Sketcher.Constraint("DistanceY", 0, 3, -1, 1, Q("75 mm")),
])
pocket11 = doc.addObject("PartDesign::Pocket", "Pocket010")
body.addObject(pocket11)
pocket11.Profile = sketch12
pocket11.Type = "UpToFirst"
pocket11.Reversed = True

# Sketch on XZ plane
sketch13 = doc.addObject("Sketcher::SketchObject", "Sketch012")
body.addObject(sketch13)
sketch13.AttachmentSupport = (doc.XZ_Plane, [""])
sketch13.MapMode = "FlatFace"
sketch13.AttachmentOffset = App.Placement(V(0, 0, -5.5), App.Rotation())
sketch13.addGeometry(Part.Circle(V(-20, -35, 0), V(0, 0, 1), 1.7), False)
sketch13.addConstraint([
    Sketcher.Constraint("Diameter", 0, Q("3.4 mm")),
    Sketcher.Constraint("DistanceX", 0, 3, -1, 1, Q("20 mm")),
    Sketcher.Constraint("DistanceY", 0, 3, -1, 1, Q("35 mm")),
])
pocket12 = doc.addObject("PartDesign::Pocket", "Pocket011")
body.addObject(pocket12)
pocket12.Profile = sketch13
pocket12.Type = "UpToFirst"
pocket12.Reversed = True

# Sketch on XZ plane
sketch14 = doc.addObject("Sketcher::SketchObject", "Sketch013")
body.addObject(sketch14)
sketch14.AttachmentSupport = (doc.XZ_Plane, [""])
sketch14.MapMode = "FlatFace"
sketch14.AttachmentOffset = App.Placement(V(0, 0, -5.5), App.Rotation())
sketch14.addGeometry(Part.Circle(V(20, -35, 0), V(0, 0, 1), 1.7), False)
sketch14.addConstraint([
    Sketcher.Constraint("Diameter", 0, Q("3.4 mm")),
    Sketcher.Constraint("DistanceX", -1, 1, 0, 3, Q("20 mm")),
    Sketcher.Constraint("DistanceY", 0, 3, -1, 1, Q("35 mm")),
])
pocket13 = doc.addObject("PartDesign::Pocket", "Pocket012")
body.addObject(pocket13)
pocket13.Profile = sketch14
pocket13.Type = "UpToFirst"
pocket13.Reversed = True

# Sketch on XZ plane
sketch15 = doc.addObject("Sketcher::SketchObject", "Sketch014")
body.addObject(sketch15)
sketch15.AttachmentSupport = (doc.XZ_Plane, [""])
sketch15.MapMode = "FlatFace"
sketch15.AttachmentOffset = App.Placement(V(0, 0, -5.5), App.Rotation())
sketch15.addGeometry(Part.Circle(V(20, -75, 0), V(0, 0, 1), 1.7), False)
sketch15.addConstraint([
    Sketcher.Constraint("Diameter", 0, Q("3.4 mm")),
    Sketcher.Constraint("DistanceX", -1, 1, 0, 3, Q("20 mm")),
    Sketcher.Constraint("DistanceY", 0, 3, -1, 1, Q("75 mm")),
])
pocket14 = doc.addObject("PartDesign::Pocket", "Pocket013")
body.addObject(pocket14)
pocket14.Profile = sketch15
pocket14.Type = "UpToFirst"
pocket14.Reversed = True

# Sketch on XZ plane
sketch16 = doc.addObject("Sketcher::SketchObject", "Sketch015")
body.addObject(sketch16)
sketch16.AttachmentSupport = (doc.XZ_Plane, [""])
sketch16.MapMode = "FlatFace"
sketch16.AttachmentOffset = App.Placement(V(0, 0, -5.5), App.Rotation())
sketch16.addGeometry(Part.Circle(V(0, 62.5, 0), V(0, 0, 1), 1.8), False)
sketch16.addConstraint([
    Sketcher.Constraint("PointOnObject", 0, 3, -2),
    Sketcher.Constraint("Diameter", 0, Q("3.5 mm")),
    Sketcher.Constraint("DistanceY", -1, 1, 0, 3, Q("62.5 mm")),
])
pocket15 = doc.addObject("PartDesign::Pocket", "Pocket014")
body.addObject(pocket15)
pocket15.Profile = sketch16
pocket15.Type = "UpToFirst"
pocket15.Reversed = True

# Sketch on XZ plane
sketch17 = doc.addObject("Sketcher::SketchObject", "Sketch016")
body.addObject(sketch17)
sketch17.AttachmentSupport = (doc.XZ_Plane, [""])
sketch17.MapMode = "FlatFace"
sketch17.AttachmentOffset = App.Placement(V(0, 0, -5.5), App.Rotation())
sketch17.addGeometry(Part.Circle(V(0, 147.5, 0), V(0, 0, 1), 1.8), False)
sketch17.addConstraint([
    Sketcher.Constraint("PointOnObject", 0, 3, -2),
    Sketcher.Constraint("Diameter", 0, Q("3.5 mm")),
    Sketcher.Constraint("DistanceY", -1, 1, 0, 3, Q("147.5 mm")),
])
pocket16 = doc.addObject("PartDesign::Pocket", "Pocket015")
body.addObject(pocket16)
pocket16.Profile = sketch17
pocket16.Type = "UpToFirst"
pocket16.Reversed = True

# Sketch on XZ plane
sketch18 = doc.addObject("Sketcher::SketchObject", "Sketch017")
body.addObject(sketch18)
sketch18.AttachmentSupport = (doc.XZ_Plane, [""])
sketch18.MapMode = "FlatFace"
sketch18.AttachmentOffset = App.Placement(V(0, 0, -5.5), App.Rotation())
sketch18.addGeometry(Part.Circle(V(-55, 145, 0), V(0, 0, 1), 1.8), False)
sketch18.addConstraint([
    Sketcher.Constraint("Diameter", 0, Q("3.5 mm")),
    Sketcher.Constraint("DistanceX", 0, 3, -1, 1, Q("55 mm")),
    Sketcher.Constraint("DistanceY", -1, 1, 0, 3, Q("145 mm")),
])
pocket17 = doc.addObject("PartDesign::Pocket", "Pocket016")
body.addObject(pocket17)
pocket17.Profile = sketch18
pocket17.Type = "UpToFirst"
pocket17.Reversed = True

# Sketch on XZ plane
sketch19 = doc.addObject("Sketcher::SketchObject", "Sketch018")
body.addObject(sketch19)
sketch19.AttachmentSupport = (doc.XZ_Plane, [""])
sketch19.MapMode = "FlatFace"
sketch19.AttachmentOffset = App.Placement(V(0, 0, -5.5), App.Rotation())
sketch19.addGeometry(Part.Circle(V(-25, 145, 0), V(0, 0, 1), 1.8), False)
sketch19.addConstraint([
    Sketcher.Constraint("Diameter", 0, Q("3.5 mm")),
    Sketcher.Constraint("DistanceX", 0, 3, -1, 1, Q("25 mm")),
    Sketcher.Constraint("DistanceY", -1, 1, 0, 3, Q("145 mm")),
])
pocket18 = doc.addObject("PartDesign::Pocket", "Pocket017")
body.addObject(pocket18)
pocket18.Profile = sketch19
pocket18.Type = "UpToFirst"
pocket18.Reversed = True

# Sketch on XZ plane
sketch20 = doc.addObject("Sketcher::SketchObject", "Sketch019")
body.addObject(sketch20)
sketch20.AttachmentSupport = (doc.XZ_Plane, [""])
sketch20.MapMode = "FlatFace"
sketch20.AttachmentOffset = App.Placement(V(0, 0, -5.5), App.Rotation())
sketch20.addGeometry([
    Part.Circle(V(-55, 145, 0), V(0, 0, 1), 3),
    Part.Circle(V(-25, 145, 0), V(0, 0, 1), 3),
], False)
sketch20.addConstraint([
    Sketcher.Constraint("Equal", 0, 1),
    Sketcher.Constraint("Horizontal", 0, 3, 1, 3),
    Sketcher.Constraint("Diameter", 0, Q("6 mm")),
    Sketcher.Constraint("DistanceX", 0, 3, -1, 1, Q("55 mm")),
    Sketcher.Constraint("DistanceY", -1, 1, 0, 3, Q("145 mm")),
    Sketcher.Constraint("DistanceX", 1, 3, -1, 1, Q("25 mm")),
])
pocket19 = doc.addObject("PartDesign::Pocket", "Pocket018")
body.addObject(pocket19)
pocket19.Profile = sketch20
pocket19.Length = 3.7
pocket19.Reversed = True

# Sketch on XZ plane
sketch21 = doc.addObject("Sketcher::SketchObject", "Sketch020")
body.addObject(sketch21)
sketch21.AttachmentSupport = (doc.XZ_Plane, [""])
sketch21.MapMode = "FlatFace"
sketch21.addGeometry([
    Part.Circle(V(40, 16, 0), V(0, 0, 1), 3),
    Part.Circle(V(40, -16, 0), V(0, 0, 1), 3),
    Part.Circle(V(-40, -16, 0), V(0, 0, 1), 3),
    Part.Circle(V(-40, 16, 0), V(0, 0, 1), 3),
], False)
sketch21.addConstraint([
    Sketcher.Constraint("Equal", 0, 1),
    Sketcher.Constraint("Equal", 1, 2),
    Sketcher.Constraint("Equal", 2, 3),
    Sketcher.Constraint("Symmetric", 0, 3, 2, 3, -1, 1),
    Sketcher.Constraint("Symmetric", 1, 3, 3, 3, -1, 1),
    Sketcher.Constraint("Symmetric", 1, 3, 2, 3, -2),
    Sketcher.Constraint("Diameter", 0, Q("6.1 mm")),
    Sketcher.Constraint("DistanceX", -1, 1, 0, 3, Q("40 mm")),
    Sketcher.Constraint("DistanceY", -1, 1, 0, 3, Q("16 mm")),
])
pocket20 = doc.addObject("PartDesign::Pocket", "Pocket019")
body.addObject(pocket20)
pocket20.Profile = sketch21
pocket20.Length = 3.7

# Sketch on an angled plane
sketch22 = doc.addObject("Sketcher::SketchObject", "Sketch021")
body.addObject(sketch22)
sketch22.Placement = App.Placement(V(29.914214, -29.914214, 0), App.Rotation(V(0, 0, -1), V(0.707106781, 0.707106781, 0), V(0.707106781, -0.707106781, 0), "ZXY"))
add_polygon(sketch22, [(-195, 48), (-195, 38), (-45, 38), (-45, 48)])  # lines 0-3
sketch22.addConstraint([
    Sketcher.Constraint("Vertical", 0),
    Sketcher.Constraint("Horizontal", 1),
    Sketcher.Constraint("Vertical", 2),
    Sketcher.Constraint("Horizontal", 3),
    Sketcher.Constraint("DistanceX", 1, 1, 1, 2, Q("150 mm")),
    Sketcher.Constraint("DistanceY", 0, 2, 0, 1, Q("10 mm")),
    Sketcher.Constraint("DistanceX", 0, 2, -1, 1, Q("195 mm")),
    Sketcher.Constraint("DistanceY", -1, 1, 0, 2, Q("38.083261 mm")),
])
pocket21 = doc.addObject("PartDesign::Pocket", "Pocket020")
body.addObject(pocket21)
pocket21.Profile = sketch22
pocket21.Length = 1.889087
pocket21.Reversed = True
doc.recompute()

fillet4 = doc.addObject("PartDesign::Fillet", "Fillet003")
body.addObject(fillet4)
fillet4.Base = (pocket21, edges_at(pocket21, [(61.164, 0, 45)]))
fillet4.Radius = 1

# Sketch on XZ plane
sketch23 = doc.addObject("Sketcher::SketchObject", "Sketch022")
body.addObject(sketch23)
sketch23.AttachmentSupport = (doc.XZ_Plane, [""])
sketch23.MapMode = "FlatFace"
sketch23.addGeometry([
    Part.LineSegment(V(56.8, 153.5, 0), V(56.8, 137.5, 0)),
    Part.ArcOfCircle(Part.Circle(V(58.3, 137.5, 0), V(0, 0, 1), 1.5), math.radians(180), math.radians(360)),
    Part.LineSegment(V(59.8, 137.5, 0), V(59.8, 153.5, 0)),
    Part.ArcOfCircle(Part.Circle(V(58.3, 153.5, 0), V(0, 0, 1), 1.5), math.radians(0), math.radians(180)),
], False)
sketch23.addConstraint([
    Sketcher.Constraint("Tangent", 0, 2, 1, 1),
    Sketcher.Constraint("Tangent", 1, 2, 2, 1),
    Sketcher.Constraint("Tangent", 2, 2, 3, 1),
    Sketcher.Constraint("Tangent", 3, 2, 0, 1),
    Sketcher.Constraint("Vertical", 0),
    Sketcher.Constraint("Vertical", 2),
    Sketcher.Constraint("Radius", 1, Q("1.5 mm")),
    Sketcher.Constraint("DistanceY", 0, 2, 0, 1, Q("16 mm")),
    Sketcher.Constraint("DistanceY", -1, 1, 1, 3, Q("137.5 mm")),
    Sketcher.Constraint("DistanceX", -1, 1, 1, 3, Q("58.328427 mm")),
])

# Sketch on XZ plane
sketch24 = doc.addObject("Sketcher::SketchObject", "Sketch023")
body.addObject(sketch24)
sketch24.AttachmentSupport = (doc.XZ_Plane, [""])
sketch24.MapMode = "FlatFace"
sketch24.AttachmentOffset = App.Placement(V(0, 0, -5.5), App.Rotation())
sketch24.addGeometry([
    Part.LineSegment(V(58, 137.5, 0), V(58, 153.5, 0)),
    Part.ArcOfCircle(Part.Circle(V(59.5, 153.5, 0), V(0, 0, 1), 1.5), math.radians(0), math.radians(180)),
    Part.LineSegment(V(61, 153.5, 0), V(61, 137.5, 0)),
    Part.ArcOfCircle(Part.Circle(V(59.5, 137.5, 0), V(0, 0, 1), 1.5), math.radians(180), math.radians(360)),
], False)
sketch24.addConstraint([
    Sketcher.Constraint("Tangent", 0, 2, 1, 2),
    Sketcher.Constraint("Tangent", 1, 1, 2, 1),
    Sketcher.Constraint("Tangent", 2, 2, 3, 2),
    Sketcher.Constraint("Tangent", 3, 1, 0, 1),
    Sketcher.Constraint("Vertical", 0),
    Sketcher.Constraint("Vertical", 2),
    Sketcher.Constraint("Radius", 1, Q("1.5 mm")),
    Sketcher.Constraint("DistanceY", 0, 1, 0, 2, Q("16 mm")),
    Sketcher.Constraint("DistanceX", -1, 1, 0, 2, Q("58 mm")),
    Sketcher.Constraint("DistanceY", -1, 1, 1, 3, Q("153.5 mm")),
])

subtractiveloft = doc.addObject("PartDesign::SubtractiveLoft", "SubtractiveLoft")
body.addObject(subtractiveloft)
subtractiveloft.Profile = sketch23
subtractiveloft.Sections = [sketch24]

doc.recompute()
